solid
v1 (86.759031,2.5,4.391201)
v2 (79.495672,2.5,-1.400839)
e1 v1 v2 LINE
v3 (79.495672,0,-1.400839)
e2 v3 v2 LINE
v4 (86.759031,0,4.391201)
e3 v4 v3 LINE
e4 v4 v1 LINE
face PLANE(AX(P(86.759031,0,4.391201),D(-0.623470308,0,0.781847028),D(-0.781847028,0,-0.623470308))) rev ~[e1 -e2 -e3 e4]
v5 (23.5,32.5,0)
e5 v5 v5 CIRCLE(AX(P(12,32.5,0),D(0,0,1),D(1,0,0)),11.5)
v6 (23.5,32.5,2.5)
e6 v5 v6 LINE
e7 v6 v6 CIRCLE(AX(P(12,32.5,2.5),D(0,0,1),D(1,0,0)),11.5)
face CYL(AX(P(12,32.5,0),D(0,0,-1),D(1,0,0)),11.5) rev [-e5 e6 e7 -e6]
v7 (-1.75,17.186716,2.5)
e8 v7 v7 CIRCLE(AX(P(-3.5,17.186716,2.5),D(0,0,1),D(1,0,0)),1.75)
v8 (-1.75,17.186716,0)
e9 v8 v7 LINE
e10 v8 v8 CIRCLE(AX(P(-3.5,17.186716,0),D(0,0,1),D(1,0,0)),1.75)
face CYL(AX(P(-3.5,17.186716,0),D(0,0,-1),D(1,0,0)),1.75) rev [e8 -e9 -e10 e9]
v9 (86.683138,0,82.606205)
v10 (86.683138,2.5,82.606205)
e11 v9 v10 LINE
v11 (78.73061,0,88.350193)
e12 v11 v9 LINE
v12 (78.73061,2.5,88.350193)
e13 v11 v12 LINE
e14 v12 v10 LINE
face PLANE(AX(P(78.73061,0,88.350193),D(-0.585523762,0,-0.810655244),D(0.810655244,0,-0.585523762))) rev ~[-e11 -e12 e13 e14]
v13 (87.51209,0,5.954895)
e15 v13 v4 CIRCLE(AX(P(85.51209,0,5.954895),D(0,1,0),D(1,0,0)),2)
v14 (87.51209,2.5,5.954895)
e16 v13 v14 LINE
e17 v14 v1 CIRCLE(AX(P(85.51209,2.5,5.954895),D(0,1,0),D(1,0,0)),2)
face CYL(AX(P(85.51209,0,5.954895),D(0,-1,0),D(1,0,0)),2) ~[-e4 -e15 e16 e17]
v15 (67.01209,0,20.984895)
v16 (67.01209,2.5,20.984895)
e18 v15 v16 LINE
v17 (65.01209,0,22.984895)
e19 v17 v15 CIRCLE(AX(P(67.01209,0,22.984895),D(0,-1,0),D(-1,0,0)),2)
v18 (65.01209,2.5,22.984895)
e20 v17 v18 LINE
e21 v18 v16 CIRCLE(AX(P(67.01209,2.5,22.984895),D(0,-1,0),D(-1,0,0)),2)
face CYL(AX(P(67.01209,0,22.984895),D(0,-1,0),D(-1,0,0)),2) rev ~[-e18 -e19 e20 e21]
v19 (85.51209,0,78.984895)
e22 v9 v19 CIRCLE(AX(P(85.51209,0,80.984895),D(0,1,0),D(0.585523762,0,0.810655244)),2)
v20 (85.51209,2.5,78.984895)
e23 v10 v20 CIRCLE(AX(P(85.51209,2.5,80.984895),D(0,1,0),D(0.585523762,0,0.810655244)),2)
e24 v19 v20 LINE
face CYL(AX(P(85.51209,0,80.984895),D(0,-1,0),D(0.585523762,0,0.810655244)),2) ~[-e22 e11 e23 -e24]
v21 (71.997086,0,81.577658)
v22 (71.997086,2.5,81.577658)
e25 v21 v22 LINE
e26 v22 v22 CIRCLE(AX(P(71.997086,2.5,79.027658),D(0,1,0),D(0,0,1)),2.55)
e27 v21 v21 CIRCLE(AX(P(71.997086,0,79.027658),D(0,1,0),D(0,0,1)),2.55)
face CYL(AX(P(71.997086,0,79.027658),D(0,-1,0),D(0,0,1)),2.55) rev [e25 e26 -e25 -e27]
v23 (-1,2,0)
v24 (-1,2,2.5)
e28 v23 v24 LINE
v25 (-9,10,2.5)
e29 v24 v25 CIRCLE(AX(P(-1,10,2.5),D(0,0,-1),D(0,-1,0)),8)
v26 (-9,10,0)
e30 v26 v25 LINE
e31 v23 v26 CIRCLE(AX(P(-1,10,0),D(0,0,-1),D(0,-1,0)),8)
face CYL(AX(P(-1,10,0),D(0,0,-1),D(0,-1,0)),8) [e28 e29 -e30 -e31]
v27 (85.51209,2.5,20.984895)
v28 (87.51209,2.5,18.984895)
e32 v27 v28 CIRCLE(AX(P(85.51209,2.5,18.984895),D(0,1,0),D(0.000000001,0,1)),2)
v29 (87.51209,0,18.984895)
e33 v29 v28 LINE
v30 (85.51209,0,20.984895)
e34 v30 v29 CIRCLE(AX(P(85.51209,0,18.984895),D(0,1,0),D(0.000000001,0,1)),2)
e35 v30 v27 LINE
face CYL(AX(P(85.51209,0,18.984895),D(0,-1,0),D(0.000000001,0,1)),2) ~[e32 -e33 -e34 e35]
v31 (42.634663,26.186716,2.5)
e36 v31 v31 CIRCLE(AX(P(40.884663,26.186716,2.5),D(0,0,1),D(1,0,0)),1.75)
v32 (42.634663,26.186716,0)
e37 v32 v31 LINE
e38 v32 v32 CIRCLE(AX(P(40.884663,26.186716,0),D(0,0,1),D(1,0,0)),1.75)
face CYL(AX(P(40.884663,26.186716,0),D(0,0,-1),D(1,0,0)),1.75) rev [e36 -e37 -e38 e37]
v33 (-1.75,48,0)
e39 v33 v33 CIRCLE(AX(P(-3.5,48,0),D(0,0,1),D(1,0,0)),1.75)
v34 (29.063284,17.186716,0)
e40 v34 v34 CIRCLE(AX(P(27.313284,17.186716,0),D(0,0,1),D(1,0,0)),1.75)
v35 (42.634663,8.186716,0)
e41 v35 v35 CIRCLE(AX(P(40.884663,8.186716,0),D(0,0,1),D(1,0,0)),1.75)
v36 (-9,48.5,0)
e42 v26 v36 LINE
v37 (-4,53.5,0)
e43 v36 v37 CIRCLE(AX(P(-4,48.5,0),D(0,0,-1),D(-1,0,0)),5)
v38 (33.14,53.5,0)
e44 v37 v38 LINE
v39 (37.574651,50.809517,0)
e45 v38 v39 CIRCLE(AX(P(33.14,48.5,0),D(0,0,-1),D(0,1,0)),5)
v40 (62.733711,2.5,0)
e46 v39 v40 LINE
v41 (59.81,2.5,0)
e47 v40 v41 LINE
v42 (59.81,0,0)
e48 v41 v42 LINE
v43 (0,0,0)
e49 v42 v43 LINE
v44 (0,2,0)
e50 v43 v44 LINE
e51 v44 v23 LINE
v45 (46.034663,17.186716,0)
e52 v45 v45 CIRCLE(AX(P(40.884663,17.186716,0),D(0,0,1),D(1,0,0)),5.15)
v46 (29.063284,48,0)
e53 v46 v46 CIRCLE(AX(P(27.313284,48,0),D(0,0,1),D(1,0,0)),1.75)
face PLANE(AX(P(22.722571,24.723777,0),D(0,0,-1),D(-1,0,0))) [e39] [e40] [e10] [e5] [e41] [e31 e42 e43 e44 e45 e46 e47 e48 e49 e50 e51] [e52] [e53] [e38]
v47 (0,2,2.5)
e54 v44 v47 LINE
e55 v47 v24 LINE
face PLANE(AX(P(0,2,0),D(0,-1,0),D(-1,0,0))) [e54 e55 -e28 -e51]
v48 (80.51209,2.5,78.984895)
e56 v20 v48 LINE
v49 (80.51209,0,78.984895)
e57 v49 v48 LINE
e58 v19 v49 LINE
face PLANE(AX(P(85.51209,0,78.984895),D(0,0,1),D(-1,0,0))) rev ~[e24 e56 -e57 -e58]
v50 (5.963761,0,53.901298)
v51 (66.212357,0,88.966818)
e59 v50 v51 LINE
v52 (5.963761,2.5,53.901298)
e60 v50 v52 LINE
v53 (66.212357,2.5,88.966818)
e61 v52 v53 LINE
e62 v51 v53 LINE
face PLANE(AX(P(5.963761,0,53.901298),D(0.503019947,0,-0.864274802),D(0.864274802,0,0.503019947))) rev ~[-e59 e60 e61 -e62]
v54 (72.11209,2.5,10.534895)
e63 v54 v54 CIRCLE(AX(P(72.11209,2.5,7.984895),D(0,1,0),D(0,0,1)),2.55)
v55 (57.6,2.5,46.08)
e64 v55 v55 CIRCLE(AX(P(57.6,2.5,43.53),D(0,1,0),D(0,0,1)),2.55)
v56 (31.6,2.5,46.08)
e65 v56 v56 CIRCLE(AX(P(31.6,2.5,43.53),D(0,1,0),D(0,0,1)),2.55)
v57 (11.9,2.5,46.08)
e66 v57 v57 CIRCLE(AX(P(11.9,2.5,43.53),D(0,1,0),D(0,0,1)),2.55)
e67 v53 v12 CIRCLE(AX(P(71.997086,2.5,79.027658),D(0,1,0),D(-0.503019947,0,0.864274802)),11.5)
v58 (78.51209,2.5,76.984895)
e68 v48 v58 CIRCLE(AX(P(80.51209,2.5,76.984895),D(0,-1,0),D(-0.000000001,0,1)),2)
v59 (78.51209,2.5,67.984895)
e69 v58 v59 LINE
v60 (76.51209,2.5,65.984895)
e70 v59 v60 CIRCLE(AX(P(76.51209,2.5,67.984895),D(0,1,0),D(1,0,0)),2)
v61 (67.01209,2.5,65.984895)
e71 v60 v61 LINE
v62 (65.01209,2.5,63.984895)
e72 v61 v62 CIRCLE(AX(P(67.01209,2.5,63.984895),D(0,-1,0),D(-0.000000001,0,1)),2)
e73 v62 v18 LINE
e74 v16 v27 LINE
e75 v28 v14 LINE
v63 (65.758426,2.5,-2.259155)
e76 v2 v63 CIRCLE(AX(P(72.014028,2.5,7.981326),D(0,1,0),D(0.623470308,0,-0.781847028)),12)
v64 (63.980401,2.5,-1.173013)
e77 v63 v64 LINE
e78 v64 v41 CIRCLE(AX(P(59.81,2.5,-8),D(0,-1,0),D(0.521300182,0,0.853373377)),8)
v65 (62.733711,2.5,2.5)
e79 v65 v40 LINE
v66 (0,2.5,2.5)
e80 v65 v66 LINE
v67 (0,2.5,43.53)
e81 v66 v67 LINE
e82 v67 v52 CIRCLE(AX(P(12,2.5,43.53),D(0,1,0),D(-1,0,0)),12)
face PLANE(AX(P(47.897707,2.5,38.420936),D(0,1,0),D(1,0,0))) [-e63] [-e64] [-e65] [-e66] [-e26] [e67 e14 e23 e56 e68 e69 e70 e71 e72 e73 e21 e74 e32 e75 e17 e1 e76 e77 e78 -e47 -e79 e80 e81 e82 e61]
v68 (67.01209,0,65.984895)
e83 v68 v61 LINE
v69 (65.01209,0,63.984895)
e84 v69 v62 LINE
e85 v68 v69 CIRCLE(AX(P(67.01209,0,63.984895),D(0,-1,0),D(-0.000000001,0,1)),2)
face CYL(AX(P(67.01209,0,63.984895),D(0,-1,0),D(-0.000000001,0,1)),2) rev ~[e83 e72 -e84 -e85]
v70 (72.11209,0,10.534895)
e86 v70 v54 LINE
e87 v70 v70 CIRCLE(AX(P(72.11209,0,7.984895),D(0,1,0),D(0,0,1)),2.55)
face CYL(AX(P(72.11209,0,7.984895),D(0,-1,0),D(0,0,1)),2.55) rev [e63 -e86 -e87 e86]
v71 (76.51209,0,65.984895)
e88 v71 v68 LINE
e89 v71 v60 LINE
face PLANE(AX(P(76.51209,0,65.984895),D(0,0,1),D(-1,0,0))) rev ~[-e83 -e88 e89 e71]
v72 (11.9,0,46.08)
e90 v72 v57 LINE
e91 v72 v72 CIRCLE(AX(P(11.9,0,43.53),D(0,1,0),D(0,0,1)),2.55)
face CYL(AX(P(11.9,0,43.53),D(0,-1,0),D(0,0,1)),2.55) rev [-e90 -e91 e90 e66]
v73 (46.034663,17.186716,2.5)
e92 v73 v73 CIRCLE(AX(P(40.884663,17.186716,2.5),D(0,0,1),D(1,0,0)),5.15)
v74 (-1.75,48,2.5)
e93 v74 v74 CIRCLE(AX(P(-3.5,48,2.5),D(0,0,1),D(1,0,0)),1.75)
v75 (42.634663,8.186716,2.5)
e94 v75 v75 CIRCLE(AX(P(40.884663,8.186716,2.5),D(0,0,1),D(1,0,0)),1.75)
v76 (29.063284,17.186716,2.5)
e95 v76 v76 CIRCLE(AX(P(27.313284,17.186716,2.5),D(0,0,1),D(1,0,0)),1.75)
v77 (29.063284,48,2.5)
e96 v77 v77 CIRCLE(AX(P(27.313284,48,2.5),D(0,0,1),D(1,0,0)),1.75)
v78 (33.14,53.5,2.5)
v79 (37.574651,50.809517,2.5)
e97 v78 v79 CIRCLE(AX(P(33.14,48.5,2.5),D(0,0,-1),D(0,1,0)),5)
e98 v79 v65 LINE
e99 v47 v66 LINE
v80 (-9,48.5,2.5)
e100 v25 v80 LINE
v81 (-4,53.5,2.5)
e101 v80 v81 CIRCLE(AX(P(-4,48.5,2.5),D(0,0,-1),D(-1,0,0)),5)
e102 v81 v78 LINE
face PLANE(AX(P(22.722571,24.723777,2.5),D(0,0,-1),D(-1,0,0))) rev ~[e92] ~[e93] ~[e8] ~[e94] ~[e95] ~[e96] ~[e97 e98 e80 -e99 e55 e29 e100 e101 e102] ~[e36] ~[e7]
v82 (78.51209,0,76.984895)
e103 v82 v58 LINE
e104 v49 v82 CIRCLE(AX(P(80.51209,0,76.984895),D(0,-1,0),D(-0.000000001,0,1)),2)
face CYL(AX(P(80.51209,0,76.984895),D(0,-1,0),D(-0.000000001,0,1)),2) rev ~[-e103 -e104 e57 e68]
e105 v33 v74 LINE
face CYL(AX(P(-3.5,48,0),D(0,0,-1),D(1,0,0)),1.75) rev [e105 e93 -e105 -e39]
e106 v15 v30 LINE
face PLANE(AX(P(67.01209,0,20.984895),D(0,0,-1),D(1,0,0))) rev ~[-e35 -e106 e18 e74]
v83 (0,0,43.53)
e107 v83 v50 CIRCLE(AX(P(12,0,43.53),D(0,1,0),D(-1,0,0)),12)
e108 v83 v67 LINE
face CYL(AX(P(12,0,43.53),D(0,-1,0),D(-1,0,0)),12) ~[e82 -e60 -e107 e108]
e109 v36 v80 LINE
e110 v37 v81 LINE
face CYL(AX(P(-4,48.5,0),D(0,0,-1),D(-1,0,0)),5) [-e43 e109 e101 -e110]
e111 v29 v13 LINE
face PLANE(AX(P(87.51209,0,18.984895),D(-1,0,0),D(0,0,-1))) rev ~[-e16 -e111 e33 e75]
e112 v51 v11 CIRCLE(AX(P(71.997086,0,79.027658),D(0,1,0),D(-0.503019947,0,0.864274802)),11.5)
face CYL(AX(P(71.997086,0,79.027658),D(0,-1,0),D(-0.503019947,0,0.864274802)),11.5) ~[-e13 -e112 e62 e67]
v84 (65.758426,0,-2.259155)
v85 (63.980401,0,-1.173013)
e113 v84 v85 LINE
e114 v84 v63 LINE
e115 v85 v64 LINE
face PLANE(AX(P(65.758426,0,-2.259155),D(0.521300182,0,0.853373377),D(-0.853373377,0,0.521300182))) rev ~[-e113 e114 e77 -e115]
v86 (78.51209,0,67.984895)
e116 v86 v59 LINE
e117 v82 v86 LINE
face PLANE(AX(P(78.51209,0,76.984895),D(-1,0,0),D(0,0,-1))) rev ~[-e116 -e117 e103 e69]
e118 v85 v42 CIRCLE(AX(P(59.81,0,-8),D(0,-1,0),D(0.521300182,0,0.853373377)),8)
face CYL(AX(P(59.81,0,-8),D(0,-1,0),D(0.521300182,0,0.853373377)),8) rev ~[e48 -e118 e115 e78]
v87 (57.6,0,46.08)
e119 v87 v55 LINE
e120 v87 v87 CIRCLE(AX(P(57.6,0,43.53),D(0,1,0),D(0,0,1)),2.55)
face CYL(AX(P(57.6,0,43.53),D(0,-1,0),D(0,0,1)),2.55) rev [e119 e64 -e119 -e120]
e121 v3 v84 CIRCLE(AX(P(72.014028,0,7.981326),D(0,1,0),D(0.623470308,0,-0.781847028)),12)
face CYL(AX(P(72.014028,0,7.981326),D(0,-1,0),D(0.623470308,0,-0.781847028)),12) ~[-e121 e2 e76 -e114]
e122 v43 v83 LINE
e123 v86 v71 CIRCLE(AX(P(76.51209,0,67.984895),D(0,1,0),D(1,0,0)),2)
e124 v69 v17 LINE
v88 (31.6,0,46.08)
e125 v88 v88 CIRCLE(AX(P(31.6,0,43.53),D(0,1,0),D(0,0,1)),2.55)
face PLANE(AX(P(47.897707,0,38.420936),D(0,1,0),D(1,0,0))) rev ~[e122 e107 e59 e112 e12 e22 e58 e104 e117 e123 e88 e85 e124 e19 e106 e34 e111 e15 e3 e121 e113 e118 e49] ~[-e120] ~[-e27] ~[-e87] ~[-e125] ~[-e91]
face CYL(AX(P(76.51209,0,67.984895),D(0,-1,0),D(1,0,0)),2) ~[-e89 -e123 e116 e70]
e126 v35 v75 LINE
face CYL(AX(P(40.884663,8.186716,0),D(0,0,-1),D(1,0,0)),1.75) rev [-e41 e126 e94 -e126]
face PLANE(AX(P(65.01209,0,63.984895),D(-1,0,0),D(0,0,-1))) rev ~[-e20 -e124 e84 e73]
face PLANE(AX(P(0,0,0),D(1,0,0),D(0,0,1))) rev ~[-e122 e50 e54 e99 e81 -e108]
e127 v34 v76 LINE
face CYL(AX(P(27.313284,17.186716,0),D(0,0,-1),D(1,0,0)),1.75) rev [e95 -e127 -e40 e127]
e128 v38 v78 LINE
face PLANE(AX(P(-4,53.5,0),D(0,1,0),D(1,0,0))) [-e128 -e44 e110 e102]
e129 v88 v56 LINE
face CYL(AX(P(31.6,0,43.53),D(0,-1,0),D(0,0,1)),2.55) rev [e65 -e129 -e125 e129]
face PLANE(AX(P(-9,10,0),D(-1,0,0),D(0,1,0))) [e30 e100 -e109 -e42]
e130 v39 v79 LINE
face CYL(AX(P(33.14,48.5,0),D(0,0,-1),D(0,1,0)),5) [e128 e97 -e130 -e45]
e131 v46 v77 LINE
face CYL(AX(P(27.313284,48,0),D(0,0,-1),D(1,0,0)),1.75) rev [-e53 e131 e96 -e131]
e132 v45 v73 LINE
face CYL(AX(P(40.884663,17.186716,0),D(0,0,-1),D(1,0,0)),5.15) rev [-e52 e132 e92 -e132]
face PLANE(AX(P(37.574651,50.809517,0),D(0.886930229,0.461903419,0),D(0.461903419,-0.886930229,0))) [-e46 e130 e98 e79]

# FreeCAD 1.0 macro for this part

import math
import FreeCAD as App
import Part
import Sketcher
Q = App.Units.Quantity

doc = App.newDocument("Part")
body = doc.addObject("PartDesign::Body", "Body")

sketch1 = doc.addObject("Sketcher::SketchObject", "Sketch")
body.addObject(sketch1)
sketch1.AttachmentSupport = (doc.XZ_Plane, [""])
sketch1.MapMode = "FlatFace"
sketch1.addGeometry([
    Part.LineSegment(App.Vector(0, 0, 0), App.Vector(0, 43.5, 0)),
    Part.ArcOfCircle(Part.Circle(App.Vector(12, 43.5, 0), App.Vector(0, 0, 1), 12), math.radians(120), math.radians(180)),
    Part.LineSegment(App.Vector(6, 53.9, 0), App.Vector(66.2, 89, 0)),
    Part.ArcOfCircle(Part.Circle(App.Vector(72, 79, 0), App.Vector(0, 0, 1), 11.5), math.radians(54), math.radians(120)),
    Part.LineSegment(App.Vector(78.7, 88.4, 0), App.Vector(86.7, 82.6, 0)),
    Part.ArcOfCircle(Part.Circle(App.Vector(85.5, 81, 0), App.Vector(0, 0, 1), 2), math.radians(-90), math.radians(54)),
    Part.LineSegment(App.Vector(85.5, 79, 0), App.Vector(80.5, 79, 0)),
    Part.ArcOfCircle(Part.Circle(App.Vector(80.5, 77, 0), App.Vector(0, 0, 1), 2), math.radians(90), math.radians(180)),
    Part.LineSegment(App.Vector(78.5, 77, 0), App.Vector(78.5, 68, 0)),
    Part.ArcOfCircle(Part.Circle(App.Vector(76.5, 68, 0), App.Vector(0, 0, 1), 2), math.radians(-90), math.radians(0)),
    Part.LineSegment(App.Vector(76.5, 66, 0), App.Vector(67, 66, 0)),
    Part.ArcOfCircle(Part.Circle(App.Vector(67, 64, 0), App.Vector(0, 0, 1), 2), math.radians(90), math.radians(180)),
    Part.LineSegment(App.Vector(65, 64, 0), App.Vector(65, 23, 0)),
    Part.ArcOfCircle(Part.Circle(App.Vector(67, 23, 0), App.Vector(0, 0, 1), 2), math.radians(180), math.radians(270)),
    Part.LineSegment(App.Vector(67, 21, 0), App.Vector(85.5, 21, 0)),
    Part.ArcOfCircle(Part.Circle(App.Vector(85.5, 19, 0), App.Vector(0, 0, 1), 2), math.radians(0), math.radians(90)),
    Part.LineSegment(App.Vector(87.5, 19, 0), App.Vector(87.5, 6, 0)),
    Part.ArcOfCircle(Part.Circle(App.Vector(85.5, 6, 0), App.Vector(0, 0, 1), 2), math.radians(-51), math.radians(0)),
    Part.LineSegment(App.Vector(86.8, 4.4, 0), App.Vector(79.5, -1.4, 0)),
    Part.ArcOfCircle(Part.Circle(App.Vector(72, 8, 0), App.Vector(0, 0, 1), 12), math.radians(-121), math.radians(-51)),
    Part.LineSegment(App.Vector(65.8, -2.3, 0), App.Vector(64, -1.2, 0)),
    Part.ArcOfCircle(Part.Circle(App.Vector(59.8, -8, 0), App.Vector(0, 0, 1), 8), math.radians(59), math.radians(90)),
    Part.LineSegment(App.Vector(59.8, 0, 0), App.Vector(0, 0, 0)),
    Part.Circle(App.Vector(11.9, 43.5, 0), App.Vector(0, 0, 1), 2.5),
    Part.Circle(App.Vector(31.6, 43.5, 0), App.Vector(0, 0, 1), 2.5),
    Part.Circle(App.Vector(72, 79, 0), App.Vector(0, 0, 1), 2.5),
    Part.Circle(App.Vector(57.6, 43.5, 0), App.Vector(0, 0, 1), 2.5),
    Part.Circle(App.Vector(72.1, 8, 0), App.Vector(0, 0, 1), 2.5),
], False)
sketch1.addConstraint([
    Sketcher.Constraint("Tangent", 0, 2, 1, 2),
    Sketcher.Constraint("Tangent", 1, 1, 2, 1),
    Sketcher.Constraint("Tangent", 2, 2, 3, 2),
    Sketcher.Constraint("Tangent", 3, 1, 4, 1),
    Sketcher.Constraint("Tangent", 4, 2, 5, 2),
    Sketcher.Constraint("Tangent", 5, 1, 6, 1),
    Sketcher.Constraint("Tangent", 6, 2, 7, 1),
    Sketcher.Constraint("Tangent", 7, 2, 8, 1),
    Sketcher.Constraint("Tangent", 8, 2, 9, 2),
    Sketcher.Constraint("Tangent", 9, 1, 10, 1),
    Sketcher.Constraint("Tangent", 10, 2, 11, 1),
    Sketcher.Constraint("Tangent", 11, 2, 12, 1),
    Sketcher.Constraint("Tangent", 12, 2, 13, 1),
    Sketcher.Constraint("Tangent", 13, 2, 14, 1),
    Sketcher.Constraint("Tangent", 14, 2, 15, 2),
    Sketcher.Constraint("Tangent", 15, 1, 16, 1),
    Sketcher.Constraint("Tangent", 16, 2, 17, 2),
    Sketcher.Constraint("Tangent", 17, 1, 18, 1),
    Sketcher.Constraint("Tangent", 18, 2, 19, 2),
    Sketcher.Constraint("Tangent", 19, 1, 20, 1),
    Sketcher.Constraint("Tangent", 20, 2, 21, 1),
    Sketcher.Constraint("Tangent", 21, 2, 22, 1),
    Sketcher.Constraint("Coincident", 22, 2, 0, 1),
    Sketcher.Constraint("Vertical", 0),
    Sketcher.Constraint("Horizontal", 6),
    Sketcher.Constraint("Vertical", 8),
    Sketcher.Constraint("Horizontal", 10),
    Sketcher.Constraint("Vertical", 12),
    Sketcher.Constraint("Horizontal", 14),
    Sketcher.Constraint("Vertical", 16),
    Sketcher.Constraint("Horizontal", 22),
    Sketcher.Constraint("Coincident", 22, 2, -1, 1),
    Sketcher.Constraint("Coincident", 25, 3, 3, 3),
    Sketcher.Constraint("Equal", 5, 7),
    Sketcher.Constraint("Equal", 7, 9),
    Sketcher.Constraint("Equal", 9, 11),
    Sketcher.Constraint("Equal", 11, 13),
    Sketcher.Constraint("Equal", 13, 15),
    Sketcher.Constraint("Equal", 15, 17),
    Sketcher.Constraint("Equal", 1, 19),
    Sketcher.Constraint("Equal", 23, 24),
    Sketcher.Constraint("Equal", 24, 25),
    Sketcher.Constraint("Equal", 25, 26),
    Sketcher.Constraint("Equal", 26, 27),
    Sketcher.Constraint("Horizontal", 1, 3, 23, 3),
    Sketcher.Constraint("Horizontal", 23, 3, 24, 3),
    Sketcher.Constraint("Horizontal", 24, 3, 26, 3),
    Sketcher.Constraint("Vertical", 5, 3, 15, 3),
    Sketcher.Constraint("Radius", 1, Q("12 mm")),
    Sketcher.Constraint("Radius", 5, Q("2 mm")),
    Sketcher.Constraint("Radius", 21, Q("8 mm")),
    Sketcher.Constraint("Diameter", 23, Q("5.1 mm")),
    Sketcher.Constraint("Radius", 3, Q("11.5 mm")),
    Sketcher.Constraint("DistanceX", 6, 2, 6, 1, Q("5 mm")),
    Sketcher.Constraint("DistanceY", 8, 2, 8, 1, Q("9 mm")),
    Sketcher.Constraint("DistanceY", 12, 2, 12, 1, Q("41 mm")),
    Sketcher.Constraint("DistanceX", 10, 2, 10, 1, Q("9.5 mm")),
    Sketcher.Constraint("Angle", 2, Q("30.2 deg")),
    Sketcher.Constraint("DistanceX", 24, 3, 26, 3, Q("26 mm")),
    Sketcher.Constraint("DistanceY", 27, 3, 13, 3, Q("15 mm")),
    Sketcher.Constraint("DistanceX", 22, 2, 22, 1, Q("59.81 mm")),
    Sketcher.Constraint("DistanceY", 0, 1, 0, 2, Q("43.53 mm")),
    Sketcher.Constraint("DistanceY", 16, 2, 16, 1, Q("13.03 mm")),
    Sketcher.Constraint("DistanceX", -1, 1, 23, 3, Q("11.9 mm")),
    Sketcher.Constraint("DistanceX", -1, 1, 24, 3, Q("31.6 mm")),
    Sketcher.Constraint("Angle", 4, Q("-35.84 deg")),
    Sketcher.Constraint("Angle", 18, Q("-141.43 deg")),
    Sketcher.Constraint("DistanceX", 27, 3, 17, 3, Q("13.4 mm")),
    Sketcher.Constraint("Distance", 2, Q("69.71 mm")),
    Sketcher.Constraint("Distance", 4, Q("9.81 mm")),
    Sketcher.Constraint("Distance", 18, Q("9.29 mm")),
])
pad1 = doc.addObject("PartDesign::Pad", "Pad")
body.addObject(pad1)
pad1.Profile = sketch1
pad1.Length = 2.5
pad1.Reversed = True

sketch2 = doc.addObject("Sketcher::SketchObject", "Sketch001")
body.addObject(sketch2)
sketch2.AttachmentSupport = (doc.XY_Plane, [""])
sketch2.MapMode = "FlatFace"
sketch2.addGeometry([
    Part.LineSegment(App.Vector(-1, 2, 0), App.Vector(0, 2, 0)),
    Part.LineSegment(App.Vector(0, 2, 0), App.Vector(63, 2.1, 0)),
    Part.LineSegment(App.Vector(63, 2.1, 0), App.Vector(37.6, 50.8, 0)),
    Part.ArcOfCircle(Part.Circle(App.Vector(33.1, 48.5, 0), App.Vector(0, 0, 1), 5), math.radians(28), math.radians(90)),
    Part.LineSegment(App.Vector(33.1, 53.5, 0), App.Vector(-4, 53.5, 0)),
    Part.ArcOfCircle(Part.Circle(App.Vector(-4, 48.5, 0), App.Vector(0, 0, 1), 5), math.radians(90), math.radians(180)),
    Part.LineSegment(App.Vector(-9, 48.5, 0), App.Vector(-9, 10, 0)),
    Part.ArcOfCircle(Part.Circle(App.Vector(-1, 10, 0), App.Vector(0, 0, 1), 8), math.radians(-180), math.radians(-90)),
    Part.Circle(App.Vector(40.9, 8.2, 0), App.Vector(0, 0, 1), 1.8),
    Part.Circle(App.Vector(40.9, 17.2, 0), App.Vector(0, 0, 1), 5.2),
    Part.Circle(App.Vector(27.3, 17.2, 0), App.Vector(0, 0, 1), 1.8),
    Part.Circle(App.Vector(40.9, 26.2, 0), App.Vector(0, 0, 1), 1.8),
    Part.Circle(App.Vector(-3.5, 17.2, 0), App.Vector(0, 0, 1), 1.8),
    Part.Circle(App.Vector(27.3, 48, 0), App.Vector(0, 0, 1), 1.8),
    Part.Circle(App.Vector(12, 32.5, 0), App.Vector(0, 0, 1), 11.5),
    Part.Circle(App.Vector(-3.5, 48, 0), App.Vector(0, 0, 1), 1.8),
], False)
sketch2.addConstraint([
    Sketcher.Constraint("Coincident", 0, 2, 1, 1),
    Sketcher.Constraint("Coincident", 1, 2, 2, 1),
    Sketcher.Constraint("Tangent", 2, 2, 3, 1),
    Sketcher.Constraint("Tangent", 3, 2, 4, 1),
    Sketcher.Constraint("Tangent", 4, 2, 5, 1),
    Sketcher.Constraint("Tangent", 5, 2, 6, 1),
    Sketcher.Constraint("Tangent", 6, 2, 7, 1),
    Sketcher.Constraint("Tangent", 7, 2, 0, 1),
    Sketcher.Constraint("Horizontal", 0),
    Sketcher.Constraint("Horizontal", 4),
    Sketcher.Constraint("Vertical", 6),
    Sketcher.Constraint("Equal", 3, 5),
    Sketcher.Constraint("Equal", 8, 10),
    Sketcher.Constraint("Equal", 10, 11),
    Sketcher.Constraint("Equal", 11, 12),
    Sketcher.Constraint("Equal", 12, 13),
    Sketcher.Constraint("Equal", 13, 15),
    Sketcher.Constraint("PointOnObject", 0, 2, -2),
    Sketcher.Constraint("Horizontal", 9, 3, 10, 3),
    Sketcher.Constraint("Horizontal", 10, 3, 12, 3),
    Sketcher.Constraint("Horizontal", 13, 3, 15, 3),
    Sketcher.Constraint("Vertical", 8, 3, 9, 3),
    Sketcher.Constraint("Vertical", 9, 3, 11, 3),
    Sketcher.Constraint("Vertical", 10, 3, 13, 3),
    Sketcher.Constraint("Vertical", 12, 3, 15, 3),
    Sketcher.Constraint("Diameter", 14, Q("23 mm")),
    Sketcher.Constraint("Radius", 3, Q("5 mm")),
    Sketcher.Constraint("Radius", 7, Q("8 mm")),
    Sketcher.Constraint("Diameter", 8, Q("3.5 mm")),
    Sketcher.Constraint("Diameter", 9, Q("10.3 mm")),
    Sketcher.Constraint("DistanceX", 0, 1, 0, 2, Q("1 mm")),
    Sketcher.Constraint("DistanceY", 6, 2, 6, 1, Q("38.5 mm")),
    Sketcher.Constraint("DistanceY", -1, 1, 7, 3, Q("10 mm")),
    Sketcher.Constraint("DistanceY", -1, 1, 13, 3, Q("48 mm")),
    Sketcher.Constraint("DistanceX", -1, 1, 14, 3, Q("12 mm")),
    Sketcher.Constraint("DistanceY", 8, 3, 9, 3, Q("9 mm")),
    Sketcher.Constraint("DistanceY", 9, 3, 11, 3, Q("9 mm")),
    Sketcher.Constraint("DistanceY", 14, 3, 5, 3, Q("16 mm")),
    Sketcher.Constraint("DistanceX", 4, 2, 4, 1, Q("37.14 mm")),
    Sketcher.Constraint("DistanceX", 12, 3, -1, 1, Q("3.5 mm")),
    Sketcher.Constraint("Angle", 2, Q("117.51 deg")),
    Sketcher.Constraint("DistanceX", 8, 3, 1, 2, Q("22.08 mm")),
    Sketcher.Constraint("DistanceY", 11, 3, 2, 2, Q("24.622801 mm")),
    Sketcher.Constraint("Distance", 1, Q("62.964689 mm")),
    Sketcher.Constraint("DistanceX", 10, 3, 9, 3, Q("13.571379 mm")),
])
pad2 = doc.addObject("PartDesign::Pad", "Pad001")
body.addObject(pad2)
pad2.Profile = sketch2
pad2.Length = 2.5

doc.recompute()
